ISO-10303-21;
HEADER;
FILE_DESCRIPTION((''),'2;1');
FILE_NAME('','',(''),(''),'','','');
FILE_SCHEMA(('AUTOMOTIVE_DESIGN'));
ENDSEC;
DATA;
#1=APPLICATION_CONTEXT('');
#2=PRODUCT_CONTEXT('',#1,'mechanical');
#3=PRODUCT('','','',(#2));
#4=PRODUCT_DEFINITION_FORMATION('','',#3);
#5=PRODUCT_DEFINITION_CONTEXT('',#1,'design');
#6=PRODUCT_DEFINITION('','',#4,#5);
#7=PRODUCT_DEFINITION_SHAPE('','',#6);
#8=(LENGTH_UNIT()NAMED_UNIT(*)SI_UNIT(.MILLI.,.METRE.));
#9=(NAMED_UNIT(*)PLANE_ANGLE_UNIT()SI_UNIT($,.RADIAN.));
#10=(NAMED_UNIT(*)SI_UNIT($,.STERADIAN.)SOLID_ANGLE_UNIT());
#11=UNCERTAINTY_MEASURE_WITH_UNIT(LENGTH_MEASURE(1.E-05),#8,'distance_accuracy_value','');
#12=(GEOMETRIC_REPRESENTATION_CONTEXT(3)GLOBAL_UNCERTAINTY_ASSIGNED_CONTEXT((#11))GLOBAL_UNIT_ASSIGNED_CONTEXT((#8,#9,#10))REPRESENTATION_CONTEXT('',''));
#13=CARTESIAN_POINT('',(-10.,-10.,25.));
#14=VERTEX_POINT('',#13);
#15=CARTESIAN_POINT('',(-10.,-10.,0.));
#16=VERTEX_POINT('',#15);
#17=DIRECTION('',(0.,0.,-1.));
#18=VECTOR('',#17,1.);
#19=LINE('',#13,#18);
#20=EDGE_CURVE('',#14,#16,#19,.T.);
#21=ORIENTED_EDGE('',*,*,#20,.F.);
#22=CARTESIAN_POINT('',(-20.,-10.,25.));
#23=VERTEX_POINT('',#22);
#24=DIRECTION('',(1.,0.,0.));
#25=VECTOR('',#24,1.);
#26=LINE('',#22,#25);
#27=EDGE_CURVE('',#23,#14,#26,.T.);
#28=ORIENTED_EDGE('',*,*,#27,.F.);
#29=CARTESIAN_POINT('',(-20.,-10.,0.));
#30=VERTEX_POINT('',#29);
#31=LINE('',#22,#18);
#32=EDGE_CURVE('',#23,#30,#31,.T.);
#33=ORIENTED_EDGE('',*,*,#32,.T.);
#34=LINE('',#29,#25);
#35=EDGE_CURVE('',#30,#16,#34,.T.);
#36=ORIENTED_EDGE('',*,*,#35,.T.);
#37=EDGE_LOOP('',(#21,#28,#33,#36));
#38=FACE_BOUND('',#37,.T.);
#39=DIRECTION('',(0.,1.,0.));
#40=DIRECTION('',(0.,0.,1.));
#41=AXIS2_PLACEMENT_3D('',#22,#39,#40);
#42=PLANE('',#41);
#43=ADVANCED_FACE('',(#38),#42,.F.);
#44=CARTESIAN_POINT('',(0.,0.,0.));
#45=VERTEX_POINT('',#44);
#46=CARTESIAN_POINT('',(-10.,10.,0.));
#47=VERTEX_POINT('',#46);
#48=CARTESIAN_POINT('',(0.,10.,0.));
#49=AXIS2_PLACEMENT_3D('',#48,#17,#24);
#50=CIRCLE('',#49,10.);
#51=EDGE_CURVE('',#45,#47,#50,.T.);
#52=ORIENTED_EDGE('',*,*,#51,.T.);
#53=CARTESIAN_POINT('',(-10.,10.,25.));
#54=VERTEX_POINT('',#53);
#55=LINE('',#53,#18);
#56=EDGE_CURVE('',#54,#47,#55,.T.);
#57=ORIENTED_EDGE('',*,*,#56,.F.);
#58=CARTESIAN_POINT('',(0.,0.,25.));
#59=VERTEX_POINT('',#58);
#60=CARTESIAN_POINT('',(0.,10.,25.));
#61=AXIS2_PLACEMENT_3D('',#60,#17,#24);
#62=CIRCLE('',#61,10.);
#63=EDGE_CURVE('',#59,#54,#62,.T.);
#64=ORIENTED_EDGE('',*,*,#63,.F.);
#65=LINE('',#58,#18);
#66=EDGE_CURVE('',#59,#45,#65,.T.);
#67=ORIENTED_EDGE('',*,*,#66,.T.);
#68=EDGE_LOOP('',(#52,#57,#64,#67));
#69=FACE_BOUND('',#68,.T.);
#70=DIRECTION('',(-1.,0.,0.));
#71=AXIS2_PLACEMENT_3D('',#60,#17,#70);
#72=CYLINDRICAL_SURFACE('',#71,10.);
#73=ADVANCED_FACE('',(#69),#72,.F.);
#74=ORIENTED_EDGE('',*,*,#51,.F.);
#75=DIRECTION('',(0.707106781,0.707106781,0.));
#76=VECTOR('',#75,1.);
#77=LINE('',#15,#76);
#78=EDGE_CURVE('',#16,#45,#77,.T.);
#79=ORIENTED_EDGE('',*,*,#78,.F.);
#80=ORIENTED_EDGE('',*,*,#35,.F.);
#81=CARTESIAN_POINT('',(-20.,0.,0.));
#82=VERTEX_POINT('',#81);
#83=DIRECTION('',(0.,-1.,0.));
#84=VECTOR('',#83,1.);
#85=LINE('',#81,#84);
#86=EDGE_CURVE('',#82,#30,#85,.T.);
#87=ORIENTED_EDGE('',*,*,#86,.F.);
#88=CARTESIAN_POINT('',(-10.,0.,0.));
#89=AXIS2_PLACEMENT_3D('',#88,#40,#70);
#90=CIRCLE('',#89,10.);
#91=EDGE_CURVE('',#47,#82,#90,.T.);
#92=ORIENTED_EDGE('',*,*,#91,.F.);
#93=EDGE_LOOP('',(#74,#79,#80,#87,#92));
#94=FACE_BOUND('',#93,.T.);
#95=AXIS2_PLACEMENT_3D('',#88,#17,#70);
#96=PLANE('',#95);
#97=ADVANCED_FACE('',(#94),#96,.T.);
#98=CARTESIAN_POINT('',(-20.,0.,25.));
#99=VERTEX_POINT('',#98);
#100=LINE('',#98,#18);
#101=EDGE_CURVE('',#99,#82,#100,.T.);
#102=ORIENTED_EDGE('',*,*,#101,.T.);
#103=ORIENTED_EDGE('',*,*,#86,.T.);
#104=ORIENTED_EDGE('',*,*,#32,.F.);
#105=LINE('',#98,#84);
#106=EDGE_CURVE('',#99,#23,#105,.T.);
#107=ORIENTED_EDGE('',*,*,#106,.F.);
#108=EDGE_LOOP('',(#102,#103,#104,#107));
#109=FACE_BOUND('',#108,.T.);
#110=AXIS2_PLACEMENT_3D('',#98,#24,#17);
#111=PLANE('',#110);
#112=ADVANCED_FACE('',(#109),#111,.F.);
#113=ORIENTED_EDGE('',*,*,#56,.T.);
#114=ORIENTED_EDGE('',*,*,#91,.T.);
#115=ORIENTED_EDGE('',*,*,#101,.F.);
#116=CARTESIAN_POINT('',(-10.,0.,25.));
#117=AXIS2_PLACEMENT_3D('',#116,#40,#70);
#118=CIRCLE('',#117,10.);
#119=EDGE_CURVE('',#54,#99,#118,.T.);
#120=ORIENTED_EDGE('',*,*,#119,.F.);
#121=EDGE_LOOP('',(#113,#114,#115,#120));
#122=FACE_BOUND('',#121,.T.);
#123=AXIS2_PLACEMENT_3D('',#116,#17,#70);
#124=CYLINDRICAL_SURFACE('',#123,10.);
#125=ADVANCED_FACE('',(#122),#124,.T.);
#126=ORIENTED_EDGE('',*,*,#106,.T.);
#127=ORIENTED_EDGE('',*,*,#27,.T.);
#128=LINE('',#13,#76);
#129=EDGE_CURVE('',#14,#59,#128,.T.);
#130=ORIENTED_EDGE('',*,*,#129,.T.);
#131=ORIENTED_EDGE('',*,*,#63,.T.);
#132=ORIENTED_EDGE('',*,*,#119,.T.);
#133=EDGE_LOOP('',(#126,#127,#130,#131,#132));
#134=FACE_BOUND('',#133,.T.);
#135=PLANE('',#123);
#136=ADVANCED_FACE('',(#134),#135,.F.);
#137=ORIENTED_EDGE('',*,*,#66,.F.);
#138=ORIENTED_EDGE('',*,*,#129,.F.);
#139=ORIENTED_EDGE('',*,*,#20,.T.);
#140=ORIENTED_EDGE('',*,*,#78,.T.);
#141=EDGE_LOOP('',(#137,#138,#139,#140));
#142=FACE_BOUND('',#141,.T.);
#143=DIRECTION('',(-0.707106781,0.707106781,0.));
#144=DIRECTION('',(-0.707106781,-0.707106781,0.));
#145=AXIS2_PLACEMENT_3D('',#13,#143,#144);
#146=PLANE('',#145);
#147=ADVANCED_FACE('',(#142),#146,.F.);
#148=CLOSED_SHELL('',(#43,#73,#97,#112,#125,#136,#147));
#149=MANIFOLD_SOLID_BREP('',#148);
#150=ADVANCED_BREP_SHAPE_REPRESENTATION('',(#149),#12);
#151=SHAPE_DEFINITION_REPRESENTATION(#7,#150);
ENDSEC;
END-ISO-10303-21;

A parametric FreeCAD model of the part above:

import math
import FreeCAD as App
import Part
import Sketcher

V = App.Vector

doc = App.newDocument("Part")
body = doc.addObject("PartDesign::Body", "Body")

sketch1 = body.newObject("Sketcher::SketchObject", "Sketch")
sketch1.AttachmentSupport = (doc.getObject("XY_Plane"), [""])
sketch1.MapMode = "FlatFace"
sketch1.addGeometry([
    Part.LineSegment(V(-20, 0, 0), V(-20, -10, 0)),
    Part.LineSegment(V(-20, -10, 0), V(-10, -10, 0)),
    Part.LineSegment(V(-10, -10, 0), V(0, 0, 0)),
    Part.ArcOfCircle(Part.Circle(V(0, 10, 0), V(0, 0, 1), 10), math.radians(180), math.radians(270)),
    Part.ArcOfCircle(Part.Circle(V(-10, 0, 0), V(0, 0, 1), 10), math.radians(90), math.radians(180)),
], False)
sketch1.addConstraint([
    Sketcher.Constraint("Coincident", 0, 2, 1, 1),
    Sketcher.Constraint("Coincident", 1, 2, 2, 1),
    Sketcher.Constraint("Coincident", 2, 2, 3, 2),
    Sketcher.Constraint("Coincident", 3, 1, 4, 1),
    Sketcher.Constraint("Tangent", 4, 2, 0, 1),
    Sketcher.Constraint("Vertical", 0),
    Sketcher.Constraint("Horizontal", 1),
    Sketcher.Constraint("Coincident", 2, 2, -1, 1),
    Sketcher.Constraint("Equal", 3, 4),
    Sketcher.Constraint("Symmetric", 1, 2, 3, 1, -1),
    Sketcher.Constraint("PointOnObject", 3, 3, -2),
    Sketcher.Constraint("PointOnObject", 4, 3, -1),
    Sketcher.Constraint("Vertical", 4, 3, 1, 2),
    Sketcher.Constraint("Radius", 3, 10.0),
])
pad1 = body.newObject("PartDesign::Pad", "Pad")
pad1.Profile = sketch1
pad1.Length = 25

doc.recompute()
